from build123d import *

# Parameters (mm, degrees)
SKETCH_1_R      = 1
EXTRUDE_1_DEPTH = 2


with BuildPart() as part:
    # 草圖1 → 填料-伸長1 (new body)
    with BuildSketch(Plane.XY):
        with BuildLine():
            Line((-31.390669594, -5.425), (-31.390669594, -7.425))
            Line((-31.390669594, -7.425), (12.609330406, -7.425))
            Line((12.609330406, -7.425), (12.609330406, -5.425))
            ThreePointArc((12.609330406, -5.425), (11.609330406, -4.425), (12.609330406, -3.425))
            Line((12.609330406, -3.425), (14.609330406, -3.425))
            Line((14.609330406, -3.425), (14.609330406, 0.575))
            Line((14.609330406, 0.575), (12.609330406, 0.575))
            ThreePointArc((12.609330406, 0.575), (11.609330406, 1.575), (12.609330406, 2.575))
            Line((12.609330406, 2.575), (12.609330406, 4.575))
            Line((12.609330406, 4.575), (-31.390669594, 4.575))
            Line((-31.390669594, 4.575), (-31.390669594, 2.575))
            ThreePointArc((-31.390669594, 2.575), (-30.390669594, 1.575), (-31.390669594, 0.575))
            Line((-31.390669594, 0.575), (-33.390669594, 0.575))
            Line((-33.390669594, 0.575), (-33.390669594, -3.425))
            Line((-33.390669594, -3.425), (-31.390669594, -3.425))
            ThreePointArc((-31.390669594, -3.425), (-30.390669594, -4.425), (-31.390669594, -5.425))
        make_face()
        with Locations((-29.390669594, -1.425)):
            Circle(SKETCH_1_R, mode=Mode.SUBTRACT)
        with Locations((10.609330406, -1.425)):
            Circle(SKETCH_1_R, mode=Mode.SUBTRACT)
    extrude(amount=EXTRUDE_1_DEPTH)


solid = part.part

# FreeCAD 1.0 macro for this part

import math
import FreeCAD as App
import Part
import Sketcher

V = App.Vector

doc = App.newDocument("Part")
body = doc.addObject("PartDesign::Body", "Body")

# Sketch on XY plane
sketch1 = doc.addObject("Sketcher::SketchObject", "Sketch")
body.addObject(sketch1)
sketch1.AttachmentSupport = (doc.XY_Plane, [""])
sketch1.MapMode = "FlatFace"
sketch1.addGeometry(Part.LineSegment(V(-31.4, -5.4, 0), V(-31.4, -7.4, 0)), False)
sketch1.addGeometry(Part.LineSegment(V(-31.4, -7.4, 0), V(12.6, -7.4, 0)), False)
sketch1.addGeometry(Part.LineSegment(V(12.6, -7.4, 0), V(12.6, -5.4, 0)), False)
sketch1.addGeometry(Part.ArcOfCircle(Part.Circle(V(12.6, -4.4, 0), V(0, 0, 1), 1), math.radians(90), math.radians(270)), False)
sketch1.addGeometry(Part.LineSegment(V(12.6, -3.4, 0), V(14.6, -3.4, 0)), False)
sketch1.addGeometry(Part.LineSegment(V(14.6, -3.4, 0), V(14.6, 0.6, 0)), False)
sketch1.addGeometry(Part.LineSegment(V(14.6, 0.6, 0), V(12.6, 0.6, 0)), False)
sketch1.addGeometry(Part.ArcOfCircle(Part.Circle(V(12.6, 1.6, 0), V(0, 0, 1), 1), math.radians(90), math.radians(270)), False)
sketch1.addGeometry(Part.LineSegment(V(12.6, 2.6, 0), V(12.6, 4.6, 0)), False)
sketch1.addGeometry(Part.LineSegment(V(12.6, 4.6, 0), V(-31.4, 4.6, 0)), False)
sketch1.addGeometry(Part.LineSegment(V(-31.4, 4.6, 0), V(-31.4, 2.6, 0)), False)
sketch1.addGeometry(Part.ArcOfCircle(Part.Circle(V(-31.4, 1.6, 0), V(0, 0, 1), 1), math.radians(-90), math.radians(90)), False)
sketch1.addGeometry(Part.LineSegment(V(-31.4, 0.6, 0), V(-33.4, 0.6, 0)), False)
sketch1.addGeometry(Part.LineSegment(V(-33.4, 0.6, 0), V(-33.4, -3.4, 0)), False)
sketch1.addGeometry(Part.LineSegment(V(-33.4, -3.4, 0), V(-31.4, -3.4, 0)), False)
sketch1.addGeometry(Part.ArcOfCircle(Part.Circle(V(-31.4, -4.4, 0), V(0, 0, 1), 1), math.radians(-90), math.radians(90)), False)
sketch1.addGeometry(Part.Circle(V(-29.4, -1.4, 0), V(0, 0, 1), 1), False)
sketch1.addGeometry(Part.Circle(V(10.6, -1.4, 0), V(0, 0, 1), 1), False)
sketch1.addConstraint(Sketcher.Constraint("Coincident", 0, 2, 1, 1))
sketch1.addConstraint(Sketcher.Constraint("Coincident", 1, 2, 2, 1))
sketch1.addConstraint(Sketcher.Constraint("Coincident", 2, 2, 3, 2))
sketch1.addConstraint(Sketcher.Constraint("Tangent", 3, 1, 4, 1))
sketch1.addConstraint(Sketcher.Constraint("Coincident", 4, 2, 5, 1))
sketch1.addConstraint(Sketcher.Constraint("Coincident", 5, 2, 6, 1))
sketch1.addConstraint(Sketcher.Constraint("Tangent", 6, 2, 7, 2))
sketch1.addConstraint(Sketcher.Constraint("Coincident", 7, 1, 8, 1))
sketch1.addConstraint(Sketcher.Constraint("Coincident", 8, 2, 9, 1))
sketch1.addConstraint(Sketcher.Constraint("Coincident", 9, 2, 10, 1))
sketch1.addConstraint(Sketcher.Constraint("Coincident", 10, 2, 11, 2))
sketch1.addConstraint(Sketcher.Constraint("Tangent", 11, 1, 12, 1))
sketch1.addConstraint(Sketcher.Constraint("Coincident", 12, 2, 13, 1))
sketch1.addConstraint(Sketcher.Constraint("Coincident", 13, 2, 14, 1))
sketch1.addConstraint(Sketcher.Constraint("Tangent", 14, 2, 15, 2))
sketch1.addConstraint(Sketcher.Constraint("Coincident", 15, 1, 0, 1))
sketch1.addConstraint(Sketcher.Constraint("Vertical", 0))
sketch1.addConstraint(Sketcher.Constraint("Horizontal", 1))
sketch1.addConstraint(Sketcher.Constraint("Vertical", 2))
sketch1.addConstraint(Sketcher.Constraint("Horizontal", 4))
sketch1.addConstraint(Sketcher.Constraint("Vertical", 5))
sketch1.addConstraint(Sketcher.Constraint("Horizontal", 6))
sketch1.addConstraint(Sketcher.Constraint("Vertical", 8))
sketch1.addConstraint(Sketcher.Constraint("Horizontal", 9))
sketch1.addConstraint(Sketcher.Constraint("Vertical", 10))
sketch1.addConstraint(Sketcher.Constraint("Horizontal", 12))
sketch1.addConstraint(Sketcher.Constraint("Vertical", 13))
sketch1.addConstraint(Sketcher.Constraint("Horizontal", 14))
sketch1.addConstraint(Sketcher.Constraint("Equal", 3, 7))
sketch1.addConstraint(Sketcher.Constraint("Equal", 7, 11))
sketch1.addConstraint(Sketcher.Constraint("Equal", 11, 15))
sketch1.addConstraint(Sketcher.Constraint("Equal", 15, 16))
sketch1.addConstraint(Sketcher.Constraint("Equal", 16, 17))
sketch1.addConstraint(Sketcher.Constraint("Horizontal", 7, 3, 11, 3))
sketch1.addConstraint(Sketcher.Constraint("Horizontal", 3, 3, 15, 3))
sketch1.addConstraint(Sketcher.Constraint("Horizontal", 16, 3, 17, 3))
sketch1.addConstraint(Sketcher.Constraint("Vertical", 3, 3, 7, 3))
sketch1.addConstraint(Sketcher.Constraint("Vertical", 11, 3, 15, 3))
sketch1.addConstraint(Sketcher.Constraint("Vertical", 15, 3, 0, 2))
sketch1.addConstraint(Sketcher.Constraint("Vertical", 7, 3, 1, 2))
sketch1.addConstraint(Sketcher.Constraint("Vertical", 6, 2, 7, 1))
sketch1.addConstraint(Sketcher.Constraint("Vertical", 0, 2, 9, 2))
sketch1.addConstraint(Sketcher.Constraint("Equal", 6, 12))
sketch1.addConstraint(Sketcher.Constraint("Equal", 14, 0))
sketch1.addConstraint(Sketcher.Constraint("Equal", 2, 8))
sketch1.addConstraint(Sketcher.Constraint("Diameter", 16, 2.0))
sketch1.addConstraint(Sketcher.Constraint("DistanceX", 1, 1, 1, 2, 44.0))
sketch1.addConstraint(Sketcher.Constraint("DistanceX", 4, 1, 4, 2, 2.0))
sketch1.addConstraint(Sketcher.Constraint("DistanceY", 5, 1, 5, 2, 4.0))
sketch1.addConstraint(Sketcher.Constraint("DistanceX", 11, 3, 16, 3, 2.0))
sketch1.addConstraint(Sketcher.Constraint("DistanceY", 16, 3, 11, 3, 3.0))
sketch1.addConstraint(Sketcher.Constraint("DistanceX", 17, 3, 3, 3, 2.0))
sketch1.addConstraint(Sketcher.Constraint("DistanceY", 3, 3, -1, 1, 4.425))
sketch1.addConstraint(Sketcher.Constraint("DistanceX", -1, 1, 3, 3, 12.60933))
pad1 = doc.addObject("PartDesign::Pad", "Pad")
body.addObject(pad1)
pad1.Profile = sketch1
pad1.Length = 2

doc.recompute()
